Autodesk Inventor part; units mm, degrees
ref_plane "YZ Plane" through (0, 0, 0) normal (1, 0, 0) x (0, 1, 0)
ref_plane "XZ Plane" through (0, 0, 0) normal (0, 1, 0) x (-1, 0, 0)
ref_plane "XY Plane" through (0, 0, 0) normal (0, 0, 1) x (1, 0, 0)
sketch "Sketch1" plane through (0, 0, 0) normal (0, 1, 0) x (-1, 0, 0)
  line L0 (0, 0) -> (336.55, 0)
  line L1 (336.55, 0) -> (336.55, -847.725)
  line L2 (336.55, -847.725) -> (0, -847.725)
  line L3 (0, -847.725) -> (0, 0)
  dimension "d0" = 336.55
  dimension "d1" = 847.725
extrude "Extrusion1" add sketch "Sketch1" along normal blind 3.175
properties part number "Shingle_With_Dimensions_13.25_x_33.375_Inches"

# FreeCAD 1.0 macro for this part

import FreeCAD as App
import Part
import Sketcher

V = App.Vector
Q = App.Units.Quantity


def add_polygon(sketch, points):
    """Adds a closed chain of lines whose ends are joined by coincident constraints."""
    first, n = sketch.GeometryCount, len(points)
    for a, b in zip(points, points[1:] + points[:1]):
        sketch.addGeometry(Part.LineSegment(App.Vector(*a, 0), App.Vector(*b, 0)), False)
    for i in range(n):
        sketch.addConstraint(Sketcher.Constraint("Coincident", first + i, 2, first + (i + 1) % n, 1))

doc = App.newDocument("Part")
params = doc.addObject("Spreadsheet::Sheet", "Params")
for row, (alias, value) in enumerate([
    ("sketch1_width", "13.25 in"),
    ("sketch1_height", "33.375 in"),
    ("pad1_length", "0.125 in"),
], start=1):
    params.set(f"A{row}", alias)
    params.set(f"B{row}", "=" + value)
    params.setAlias(f"B{row}", alias)

body = doc.addObject("PartDesign::Body", "Body")

sketch1 = body.newObject("Sketcher::SketchObject", "Sketch")
sketch1.AttachmentSupport = (doc.getObject("XZ_Plane"), [""])
sketch1.MapMode = "FlatFace"
add_polygon(sketch1, [(-337, 0), (0, 0), (0, -848), (-337, -848)])
sketch1.addConstraint([
    Sketcher.Constraint("Horizontal", 0),
    Sketcher.Constraint("Vertical", 1),
    Sketcher.Constraint("Horizontal", 2),
    Sketcher.Constraint("Vertical", 3),
    Sketcher.Constraint("Coincident", 0, 2, -1, 1),
    Sketcher.Constraint("DistanceX", 0, 1, 0, 2, Q("13.25 in")),
    Sketcher.Constraint("DistanceY", 1, 2, 1, 1, Q("33.375 in")),
])
sketch1.setExpression("Constraints[9]", "Params.sketch1_width")
sketch1.setExpression("Constraints[10]", "Params.sketch1_height")
pad1 = body.newObject("PartDesign::Pad", "Pad")
pad1.Profile = sketch1
pad1.setExpression("Length", "Params.pad1_length")
pad1.Reversed = True

doc.recompute()
